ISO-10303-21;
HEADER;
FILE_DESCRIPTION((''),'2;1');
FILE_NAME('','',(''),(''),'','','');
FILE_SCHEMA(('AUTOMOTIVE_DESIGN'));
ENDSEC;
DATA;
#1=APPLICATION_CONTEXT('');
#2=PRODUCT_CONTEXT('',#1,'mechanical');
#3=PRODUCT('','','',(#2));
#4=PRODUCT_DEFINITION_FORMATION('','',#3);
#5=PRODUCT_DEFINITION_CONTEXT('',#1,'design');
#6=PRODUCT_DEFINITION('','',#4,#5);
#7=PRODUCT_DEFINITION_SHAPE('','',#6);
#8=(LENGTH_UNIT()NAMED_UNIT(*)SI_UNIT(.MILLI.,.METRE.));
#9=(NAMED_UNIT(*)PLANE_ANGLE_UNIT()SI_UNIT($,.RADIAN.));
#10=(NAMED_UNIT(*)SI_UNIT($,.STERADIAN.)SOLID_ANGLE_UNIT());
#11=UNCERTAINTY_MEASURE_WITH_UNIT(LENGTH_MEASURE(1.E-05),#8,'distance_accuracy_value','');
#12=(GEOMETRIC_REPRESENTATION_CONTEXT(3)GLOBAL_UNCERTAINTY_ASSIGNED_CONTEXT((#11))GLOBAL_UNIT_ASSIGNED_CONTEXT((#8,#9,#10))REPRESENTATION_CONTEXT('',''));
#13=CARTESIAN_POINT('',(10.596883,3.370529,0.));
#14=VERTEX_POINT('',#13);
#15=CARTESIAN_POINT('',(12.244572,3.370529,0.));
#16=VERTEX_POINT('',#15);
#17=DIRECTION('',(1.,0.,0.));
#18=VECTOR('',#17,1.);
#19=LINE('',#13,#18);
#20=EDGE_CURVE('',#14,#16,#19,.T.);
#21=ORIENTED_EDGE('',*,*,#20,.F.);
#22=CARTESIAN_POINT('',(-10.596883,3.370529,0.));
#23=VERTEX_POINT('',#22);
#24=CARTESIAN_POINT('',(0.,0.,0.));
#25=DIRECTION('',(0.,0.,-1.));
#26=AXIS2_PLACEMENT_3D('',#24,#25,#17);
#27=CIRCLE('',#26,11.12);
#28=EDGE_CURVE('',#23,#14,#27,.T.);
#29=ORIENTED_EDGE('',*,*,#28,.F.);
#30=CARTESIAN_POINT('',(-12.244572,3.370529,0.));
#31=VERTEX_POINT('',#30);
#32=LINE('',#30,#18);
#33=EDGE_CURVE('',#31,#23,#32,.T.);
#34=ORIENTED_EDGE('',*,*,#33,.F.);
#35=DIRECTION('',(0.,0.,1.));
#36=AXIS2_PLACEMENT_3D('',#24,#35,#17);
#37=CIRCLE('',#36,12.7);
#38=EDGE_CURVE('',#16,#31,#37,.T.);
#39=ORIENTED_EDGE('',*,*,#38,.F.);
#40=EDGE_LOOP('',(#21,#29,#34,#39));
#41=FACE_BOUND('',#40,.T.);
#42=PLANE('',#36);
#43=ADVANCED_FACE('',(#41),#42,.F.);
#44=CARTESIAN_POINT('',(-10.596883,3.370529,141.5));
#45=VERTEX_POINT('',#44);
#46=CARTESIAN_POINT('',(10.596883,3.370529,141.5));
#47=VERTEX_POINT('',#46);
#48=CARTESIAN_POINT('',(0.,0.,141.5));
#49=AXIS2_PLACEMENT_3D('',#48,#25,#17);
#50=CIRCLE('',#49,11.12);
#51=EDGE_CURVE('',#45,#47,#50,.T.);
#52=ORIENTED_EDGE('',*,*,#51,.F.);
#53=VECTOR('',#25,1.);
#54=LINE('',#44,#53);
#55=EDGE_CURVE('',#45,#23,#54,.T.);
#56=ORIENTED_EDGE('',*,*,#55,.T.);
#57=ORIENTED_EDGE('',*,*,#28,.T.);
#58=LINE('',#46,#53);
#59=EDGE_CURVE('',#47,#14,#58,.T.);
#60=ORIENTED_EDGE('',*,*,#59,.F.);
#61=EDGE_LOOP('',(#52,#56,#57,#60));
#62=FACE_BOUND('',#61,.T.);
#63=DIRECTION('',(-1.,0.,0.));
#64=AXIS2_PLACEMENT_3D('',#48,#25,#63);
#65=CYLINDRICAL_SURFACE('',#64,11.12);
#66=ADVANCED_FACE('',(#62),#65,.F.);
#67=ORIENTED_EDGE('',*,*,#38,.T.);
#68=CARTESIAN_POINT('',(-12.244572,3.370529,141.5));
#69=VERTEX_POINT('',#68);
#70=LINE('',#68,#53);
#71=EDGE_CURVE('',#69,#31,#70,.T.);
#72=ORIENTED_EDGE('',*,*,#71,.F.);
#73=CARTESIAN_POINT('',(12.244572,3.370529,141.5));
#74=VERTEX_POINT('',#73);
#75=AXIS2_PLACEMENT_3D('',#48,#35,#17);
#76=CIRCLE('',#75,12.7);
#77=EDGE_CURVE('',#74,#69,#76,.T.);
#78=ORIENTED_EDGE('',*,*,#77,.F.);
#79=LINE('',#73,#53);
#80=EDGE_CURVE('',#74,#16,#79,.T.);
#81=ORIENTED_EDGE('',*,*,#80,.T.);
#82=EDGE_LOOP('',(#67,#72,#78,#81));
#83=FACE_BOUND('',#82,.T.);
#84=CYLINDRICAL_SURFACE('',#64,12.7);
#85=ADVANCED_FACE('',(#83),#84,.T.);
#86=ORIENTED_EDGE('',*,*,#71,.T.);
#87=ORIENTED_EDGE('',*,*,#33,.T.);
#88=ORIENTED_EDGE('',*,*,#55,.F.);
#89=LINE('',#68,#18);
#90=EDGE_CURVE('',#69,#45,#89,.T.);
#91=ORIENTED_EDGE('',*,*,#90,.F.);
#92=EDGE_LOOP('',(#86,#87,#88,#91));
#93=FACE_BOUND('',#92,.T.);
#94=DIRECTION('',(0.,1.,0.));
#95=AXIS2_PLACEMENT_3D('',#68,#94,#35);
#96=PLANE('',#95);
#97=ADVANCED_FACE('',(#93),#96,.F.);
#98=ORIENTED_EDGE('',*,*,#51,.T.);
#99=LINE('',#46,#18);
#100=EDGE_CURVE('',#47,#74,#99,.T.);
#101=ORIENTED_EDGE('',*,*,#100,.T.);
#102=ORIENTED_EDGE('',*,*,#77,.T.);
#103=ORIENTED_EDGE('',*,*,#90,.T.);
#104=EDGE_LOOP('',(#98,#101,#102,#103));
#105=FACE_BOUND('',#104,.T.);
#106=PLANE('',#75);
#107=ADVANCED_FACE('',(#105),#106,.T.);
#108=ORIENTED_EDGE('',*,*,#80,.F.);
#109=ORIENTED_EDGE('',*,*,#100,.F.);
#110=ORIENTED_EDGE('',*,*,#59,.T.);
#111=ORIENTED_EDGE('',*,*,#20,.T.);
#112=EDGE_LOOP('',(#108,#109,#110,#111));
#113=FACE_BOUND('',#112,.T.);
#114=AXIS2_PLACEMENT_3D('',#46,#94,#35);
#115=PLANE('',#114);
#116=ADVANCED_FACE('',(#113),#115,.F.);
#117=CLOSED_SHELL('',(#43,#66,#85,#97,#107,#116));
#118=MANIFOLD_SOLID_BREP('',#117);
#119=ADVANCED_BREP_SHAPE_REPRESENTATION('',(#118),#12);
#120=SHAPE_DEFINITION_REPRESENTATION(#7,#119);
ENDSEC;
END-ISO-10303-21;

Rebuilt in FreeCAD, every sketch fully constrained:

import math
import FreeCAD as App
import Part
import Sketcher

doc = App.newDocument("Part")
body = doc.addObject("PartDesign::Body", "Body")

sketch1 = doc.addObject("Sketcher::SketchObject", "Sketch")
body.addObject(sketch1)
sketch1.AttachmentSupport = (doc.XY_Plane, [""])
sketch1.MapMode = "FlatFace"
sketch1.addGeometry([
    Part.LineSegment(App.Vector(-12.2, 3.4, 0), App.Vector(-10.6, 3.4, 0)),
    Part.ArcOfCircle(Part.Circle(App.Vector(0, 0, 0), App.Vector(0, 0, 1), 11.1), math.radians(18), math.radians(162)),
    Part.LineSegment(App.Vector(10.6, 3.4, 0), App.Vector(12.2, 3.4, 0)),
    Part.ArcOfCircle(Part.Circle(App.Vector(0, 0, 0), App.Vector(0, 0, 1), 12.7), math.radians(15), math.radians(165)),
], False)
sketch1.addConstraint([
    Sketcher.Constraint("Coincident", 0, 2, 1, 2),
    Sketcher.Constraint("Coincident", 1, 1, 2, 1),
    Sketcher.Constraint("Coincident", 2, 2, 3, 1),
    Sketcher.Constraint("Coincident", 3, 2, 0, 1),
    Sketcher.Constraint("Horizontal", 0),
    Sketcher.Constraint("Horizontal", 2),
    Sketcher.Constraint("Coincident", 1, 3, -1, 1),
    Sketcher.Constraint("Coincident", 3, 3, -1, 1),
    Sketcher.Constraint("Horizontal", 0, 2, 1, 1),
    Sketcher.Constraint("Radius", 3, 12.7),
    Sketcher.Constraint("Radius", 1, 11.12),
    Sketcher.Constraint("DistanceX", 0, 1, 0, 2, 1.647688),
])
pad1 = doc.addObject("PartDesign::Pad", "Pad")
body.addObject(pad1)
pad1.Profile = sketch1
pad1.Length = 141.5

doc.recompute()
